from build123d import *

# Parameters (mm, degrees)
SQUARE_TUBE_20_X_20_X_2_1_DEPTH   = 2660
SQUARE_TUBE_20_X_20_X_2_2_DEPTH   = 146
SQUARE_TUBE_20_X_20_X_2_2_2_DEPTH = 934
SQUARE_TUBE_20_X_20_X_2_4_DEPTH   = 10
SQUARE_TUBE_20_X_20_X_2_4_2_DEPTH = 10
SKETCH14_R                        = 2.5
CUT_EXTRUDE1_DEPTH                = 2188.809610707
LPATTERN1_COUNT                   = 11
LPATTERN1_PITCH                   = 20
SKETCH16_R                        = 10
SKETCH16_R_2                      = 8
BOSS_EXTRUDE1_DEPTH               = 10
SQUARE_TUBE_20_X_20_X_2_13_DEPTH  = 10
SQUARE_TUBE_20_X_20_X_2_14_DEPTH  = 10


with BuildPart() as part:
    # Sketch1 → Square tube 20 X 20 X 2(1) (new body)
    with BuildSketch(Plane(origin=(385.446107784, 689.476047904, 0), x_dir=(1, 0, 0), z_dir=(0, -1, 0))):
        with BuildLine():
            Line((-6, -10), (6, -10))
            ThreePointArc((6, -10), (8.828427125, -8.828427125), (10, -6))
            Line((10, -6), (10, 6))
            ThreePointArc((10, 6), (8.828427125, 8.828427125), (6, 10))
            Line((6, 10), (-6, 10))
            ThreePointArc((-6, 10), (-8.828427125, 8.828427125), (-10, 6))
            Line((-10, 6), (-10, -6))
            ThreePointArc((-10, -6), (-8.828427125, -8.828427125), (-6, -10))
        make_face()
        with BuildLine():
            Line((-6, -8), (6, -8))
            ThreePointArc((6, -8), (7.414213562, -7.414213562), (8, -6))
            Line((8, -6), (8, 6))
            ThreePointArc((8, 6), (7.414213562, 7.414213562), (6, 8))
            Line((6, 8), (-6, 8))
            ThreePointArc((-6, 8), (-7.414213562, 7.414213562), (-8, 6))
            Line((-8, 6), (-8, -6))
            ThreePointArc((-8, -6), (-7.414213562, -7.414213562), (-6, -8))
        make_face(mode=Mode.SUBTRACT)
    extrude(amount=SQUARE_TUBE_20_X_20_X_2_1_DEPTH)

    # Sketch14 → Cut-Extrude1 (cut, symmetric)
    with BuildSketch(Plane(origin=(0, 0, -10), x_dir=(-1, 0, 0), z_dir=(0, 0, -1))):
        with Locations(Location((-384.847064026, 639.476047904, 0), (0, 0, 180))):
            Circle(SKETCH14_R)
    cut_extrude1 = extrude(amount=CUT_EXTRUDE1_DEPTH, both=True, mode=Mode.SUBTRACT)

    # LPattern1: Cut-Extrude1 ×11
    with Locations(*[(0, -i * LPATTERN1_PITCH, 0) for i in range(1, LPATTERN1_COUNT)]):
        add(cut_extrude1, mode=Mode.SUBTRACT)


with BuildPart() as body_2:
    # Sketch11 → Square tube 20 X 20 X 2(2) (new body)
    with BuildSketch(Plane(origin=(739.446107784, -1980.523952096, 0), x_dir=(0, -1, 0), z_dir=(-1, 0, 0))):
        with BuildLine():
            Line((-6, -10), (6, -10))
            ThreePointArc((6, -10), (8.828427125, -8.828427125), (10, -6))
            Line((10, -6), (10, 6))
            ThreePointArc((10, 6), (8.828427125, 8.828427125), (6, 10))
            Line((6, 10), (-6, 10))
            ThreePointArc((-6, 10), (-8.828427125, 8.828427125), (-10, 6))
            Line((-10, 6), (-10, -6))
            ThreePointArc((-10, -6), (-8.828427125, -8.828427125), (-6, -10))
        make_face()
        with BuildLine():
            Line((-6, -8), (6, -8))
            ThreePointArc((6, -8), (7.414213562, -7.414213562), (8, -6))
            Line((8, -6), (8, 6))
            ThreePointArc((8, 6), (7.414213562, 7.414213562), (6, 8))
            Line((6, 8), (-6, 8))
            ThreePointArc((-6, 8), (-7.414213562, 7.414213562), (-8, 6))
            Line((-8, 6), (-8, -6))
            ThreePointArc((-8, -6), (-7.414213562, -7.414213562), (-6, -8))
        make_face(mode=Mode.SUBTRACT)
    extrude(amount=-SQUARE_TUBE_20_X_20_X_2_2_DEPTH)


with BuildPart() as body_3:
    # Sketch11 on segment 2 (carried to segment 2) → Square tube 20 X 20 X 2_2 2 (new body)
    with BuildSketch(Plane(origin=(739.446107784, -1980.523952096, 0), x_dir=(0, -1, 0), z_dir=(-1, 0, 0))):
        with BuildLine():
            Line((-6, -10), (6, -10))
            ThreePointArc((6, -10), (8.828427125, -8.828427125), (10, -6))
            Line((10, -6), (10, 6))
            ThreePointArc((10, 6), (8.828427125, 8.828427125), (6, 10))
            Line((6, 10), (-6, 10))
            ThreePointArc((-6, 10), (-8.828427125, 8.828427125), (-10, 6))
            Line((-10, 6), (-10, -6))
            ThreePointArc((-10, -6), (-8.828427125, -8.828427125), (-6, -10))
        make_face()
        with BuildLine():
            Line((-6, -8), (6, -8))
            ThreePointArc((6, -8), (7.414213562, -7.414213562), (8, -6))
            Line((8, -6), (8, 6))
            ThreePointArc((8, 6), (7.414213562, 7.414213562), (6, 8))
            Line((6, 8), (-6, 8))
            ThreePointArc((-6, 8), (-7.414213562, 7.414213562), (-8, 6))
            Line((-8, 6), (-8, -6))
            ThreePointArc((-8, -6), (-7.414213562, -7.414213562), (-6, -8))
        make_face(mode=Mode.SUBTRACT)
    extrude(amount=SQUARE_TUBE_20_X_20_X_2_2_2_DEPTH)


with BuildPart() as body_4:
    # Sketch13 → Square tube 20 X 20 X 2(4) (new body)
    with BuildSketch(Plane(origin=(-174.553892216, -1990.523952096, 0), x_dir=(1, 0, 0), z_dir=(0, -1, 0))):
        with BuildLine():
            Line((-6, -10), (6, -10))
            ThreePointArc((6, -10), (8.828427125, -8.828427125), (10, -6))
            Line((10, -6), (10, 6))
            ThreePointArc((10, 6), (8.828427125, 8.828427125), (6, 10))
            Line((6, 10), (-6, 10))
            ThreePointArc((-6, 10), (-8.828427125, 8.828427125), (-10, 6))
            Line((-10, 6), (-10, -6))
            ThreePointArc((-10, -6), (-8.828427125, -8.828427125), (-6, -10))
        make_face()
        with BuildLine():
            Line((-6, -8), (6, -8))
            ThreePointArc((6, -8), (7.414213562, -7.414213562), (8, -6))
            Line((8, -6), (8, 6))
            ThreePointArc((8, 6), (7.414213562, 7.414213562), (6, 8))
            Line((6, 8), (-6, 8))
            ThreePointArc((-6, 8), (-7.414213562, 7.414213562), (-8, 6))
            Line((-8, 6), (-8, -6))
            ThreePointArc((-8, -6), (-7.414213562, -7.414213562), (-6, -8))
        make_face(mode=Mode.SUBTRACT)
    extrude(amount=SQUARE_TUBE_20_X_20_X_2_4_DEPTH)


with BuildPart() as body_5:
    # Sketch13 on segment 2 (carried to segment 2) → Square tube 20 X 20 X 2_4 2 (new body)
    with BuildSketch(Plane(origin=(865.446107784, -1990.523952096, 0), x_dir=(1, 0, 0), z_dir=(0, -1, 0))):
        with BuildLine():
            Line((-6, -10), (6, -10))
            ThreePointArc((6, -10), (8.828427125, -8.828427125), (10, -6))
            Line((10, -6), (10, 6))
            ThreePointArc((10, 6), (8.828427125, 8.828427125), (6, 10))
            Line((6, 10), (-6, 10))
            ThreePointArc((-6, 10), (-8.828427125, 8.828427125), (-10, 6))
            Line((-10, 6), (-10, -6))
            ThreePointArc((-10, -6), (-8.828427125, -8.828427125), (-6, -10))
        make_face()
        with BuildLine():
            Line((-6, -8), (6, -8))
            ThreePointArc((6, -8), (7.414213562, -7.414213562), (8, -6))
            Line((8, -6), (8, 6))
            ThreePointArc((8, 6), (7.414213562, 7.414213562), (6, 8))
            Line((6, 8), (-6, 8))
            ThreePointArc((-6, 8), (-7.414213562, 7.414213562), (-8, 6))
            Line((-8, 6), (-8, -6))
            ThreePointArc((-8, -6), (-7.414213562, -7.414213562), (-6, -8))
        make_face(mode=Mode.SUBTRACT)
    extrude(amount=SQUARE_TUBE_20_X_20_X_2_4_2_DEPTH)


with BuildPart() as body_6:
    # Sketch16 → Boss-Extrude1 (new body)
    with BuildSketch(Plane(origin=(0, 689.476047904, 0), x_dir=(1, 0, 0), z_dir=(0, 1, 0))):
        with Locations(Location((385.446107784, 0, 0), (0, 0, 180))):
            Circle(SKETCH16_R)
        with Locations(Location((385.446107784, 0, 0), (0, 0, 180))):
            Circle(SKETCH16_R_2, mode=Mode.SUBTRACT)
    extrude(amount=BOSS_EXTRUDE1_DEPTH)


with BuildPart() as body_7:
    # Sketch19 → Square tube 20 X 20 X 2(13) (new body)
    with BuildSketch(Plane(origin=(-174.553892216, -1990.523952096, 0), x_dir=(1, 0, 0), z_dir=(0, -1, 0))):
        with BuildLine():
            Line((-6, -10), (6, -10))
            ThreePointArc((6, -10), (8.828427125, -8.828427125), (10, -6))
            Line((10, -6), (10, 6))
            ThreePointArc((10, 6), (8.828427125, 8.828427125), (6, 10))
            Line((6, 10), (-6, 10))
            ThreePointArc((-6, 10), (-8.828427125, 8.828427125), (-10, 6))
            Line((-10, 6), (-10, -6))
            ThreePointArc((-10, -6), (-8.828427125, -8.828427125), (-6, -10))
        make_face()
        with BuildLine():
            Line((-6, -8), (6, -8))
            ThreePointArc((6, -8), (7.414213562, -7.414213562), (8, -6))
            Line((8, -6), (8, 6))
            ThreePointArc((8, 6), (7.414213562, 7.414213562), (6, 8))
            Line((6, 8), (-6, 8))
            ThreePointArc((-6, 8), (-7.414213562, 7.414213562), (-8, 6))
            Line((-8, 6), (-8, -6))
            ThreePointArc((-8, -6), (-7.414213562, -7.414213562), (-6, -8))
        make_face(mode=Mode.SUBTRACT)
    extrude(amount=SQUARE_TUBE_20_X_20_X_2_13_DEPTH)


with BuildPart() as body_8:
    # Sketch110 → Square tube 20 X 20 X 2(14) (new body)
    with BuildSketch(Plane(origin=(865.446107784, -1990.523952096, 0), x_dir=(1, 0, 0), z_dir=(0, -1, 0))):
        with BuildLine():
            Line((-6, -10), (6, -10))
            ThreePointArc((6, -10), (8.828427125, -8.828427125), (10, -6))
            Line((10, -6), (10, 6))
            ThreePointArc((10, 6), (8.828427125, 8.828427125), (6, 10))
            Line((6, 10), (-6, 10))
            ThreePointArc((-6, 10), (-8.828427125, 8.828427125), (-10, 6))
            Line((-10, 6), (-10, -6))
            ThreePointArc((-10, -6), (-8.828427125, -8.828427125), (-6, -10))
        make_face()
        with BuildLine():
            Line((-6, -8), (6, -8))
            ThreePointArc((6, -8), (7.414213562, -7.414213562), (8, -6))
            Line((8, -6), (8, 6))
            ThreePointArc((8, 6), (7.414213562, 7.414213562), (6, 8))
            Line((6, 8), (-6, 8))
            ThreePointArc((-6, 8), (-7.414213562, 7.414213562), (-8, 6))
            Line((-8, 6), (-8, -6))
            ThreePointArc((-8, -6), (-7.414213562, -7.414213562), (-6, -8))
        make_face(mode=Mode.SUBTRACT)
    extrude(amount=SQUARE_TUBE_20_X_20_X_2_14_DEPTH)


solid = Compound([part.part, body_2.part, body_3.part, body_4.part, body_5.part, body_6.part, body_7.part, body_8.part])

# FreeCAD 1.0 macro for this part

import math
import FreeCAD as App
import Part
import Sketcher

V = App.Vector
Q = App.Units.Quantity

doc = App.newDocument("Part")
body = doc.addObject("PartDesign::Body", "Body")

# Sketch on XZ plane
sketch1 = body.newObject("Sketcher::SketchObject", "Sketch")
sketch1.AttachmentSupport = (doc.getObject("XZ_Plane"), [""])
sketch1.MapMode = "FlatFace"
sketch1.AttachmentOffset = App.Placement(V(0, 0, -689.476048), App.Rotation())
sketch1.addGeometry(Part.LineSegment(V(379.446108, -10, 0), V(391.446108, -10, 0)), False)
sketch1.addGeometry(Part.ArcOfCircle(Part.Circle(V(391.446108, -6, 0), V(0, 0, 1), 4), math.radians(-90), math.radians(0)), False)
sketch1.addGeometry(Part.LineSegment(V(395.446108, -6, 0), V(395.446108, 6, 0)), False)
sketch1.addGeometry(Part.ArcOfCircle(Part.Circle(V(391.446108, 6, 0), V(0, 0, 1), 4), math.radians(0), math.radians(90)), False)
sketch1.addGeometry(Part.LineSegment(V(391.446108, 10, 0), V(379.446108, 10, 0)), False)
sketch1.addGeometry(Part.ArcOfCircle(Part.Circle(V(379.446108, 6, 0), V(0, 0, 1), 4), math.radians(90), math.radians(180)), False)
sketch1.addGeometry(Part.LineSegment(V(375.446108, 6, 0), V(375.446108, -6, 0)), False)
sketch1.addGeometry(Part.ArcOfCircle(Part.Circle(V(379.446108, -6, 0), V(0, 0, 1), 4), math.radians(180), math.radians(270)), False)
sketch1.addGeometry(Part.LineSegment(V(391.446108, -8, 0), V(379.446108, -8, 0)), False)
sketch1.addGeometry(Part.ArcOfCircle(Part.Circle(V(379.446108, -6, 0), V(0, 0, 1), 2), math.radians(-180), math.radians(-90)), False)
sketch1.addGeometry(Part.LineSegment(V(377.446108, -6, 0), V(377.446108, 6, 0)), False)
sketch1.addGeometry(Part.ArcOfCircle(Part.Circle(V(379.446108, 6, 0), V(0, 0, 1), 2), math.radians(90), math.radians(180)), False)
sketch1.addGeometry(Part.LineSegment(V(379.446108, 8, 0), V(391.446108, 8, 0)), False)
sketch1.addGeometry(Part.ArcOfCircle(Part.Circle(V(391.446108, 6, 0), V(0, 0, 1), 2), math.radians(0), math.radians(90)), False)
sketch1.addGeometry(Part.LineSegment(V(393.446108, 6, 0), V(393.446108, -6, 0)), False)
sketch1.addGeometry(Part.ArcOfCircle(Part.Circle(V(391.446108, -6, 0), V(0, 0, 1), 2), math.radians(-90), math.radians(0)), False)
sketch1.addConstraint(Sketcher.Constraint("Tangent", 0, 2, 1, 1))
sketch1.addConstraint(Sketcher.Constraint("Tangent", 1, 2, 2, 1))
sketch1.addConstraint(Sketcher.Constraint("Tangent", 2, 2, 3, 1))
sketch1.addConstraint(Sketcher.Constraint("Tangent", 3, 2, 4, 1))
sketch1.addConstraint(Sketcher.Constraint("Tangent", 4, 2, 5, 1))
sketch1.addConstraint(Sketcher.Constraint("Tangent", 5, 2, 6, 1))
sketch1.addConstraint(Sketcher.Constraint("Tangent", 6, 2, 7, 1))
sketch1.addConstraint(Sketcher.Constraint("Tangent", 7, 2, 0, 1))
sketch1.addConstraint(Sketcher.Constraint("Tangent", 8, 2, 9, 2))
sketch1.addConstraint(Sketcher.Constraint("Tangent", 9, 1, 10, 1))
sketch1.addConstraint(Sketcher.Constraint("Tangent", 10, 2, 11, 2))
sketch1.addConstraint(Sketcher.Constraint("Tangent", 11, 1, 12, 1))
sketch1.addConstraint(Sketcher.Constraint("Tangent", 12, 2, 13, 2))
sketch1.addConstraint(Sketcher.Constraint("Tangent", 13, 1, 14, 1))
sketch1.addConstraint(Sketcher.Constraint("Tangent", 14, 2, 15, 2))
sketch1.addConstraint(Sketcher.Constraint("Tangent", 15, 1, 8, 1))
sketch1.addConstraint(Sketcher.Constraint("Horizontal", 0))
sketch1.addConstraint(Sketcher.Constraint("Vertical", 2))
sketch1.addConstraint(Sketcher.Constraint("Horizontal", 4))
sketch1.addConstraint(Sketcher.Constraint("Vertical", 6))
sketch1.addConstraint(Sketcher.Constraint("Horizontal", 8))
sketch1.addConstraint(Sketcher.Constraint("Vertical", 10))
sketch1.addConstraint(Sketcher.Constraint("Horizontal", 12))
sketch1.addConstraint(Sketcher.Constraint("Vertical", 14))
sketch1.addConstraint(Sketcher.Constraint("Coincident", 9, 3, 7, 3))
sketch1.addConstraint(Sketcher.Constraint("Coincident", 11, 3, 5, 3))
sketch1.addConstraint(Sketcher.Constraint("Coincident", 13, 3, 3, 3))
sketch1.addConstraint(Sketcher.Constraint("Equal", 1, 3))
sketch1.addConstraint(Sketcher.Constraint("Equal", 3, 5))
sketch1.addConstraint(Sketcher.Constraint("Equal", 5, 7))
sketch1.addConstraint(Sketcher.Constraint("Equal", 13, 15))
sketch1.addConstraint(Sketcher.Constraint("Equal", 12, 2))
sketch1.addConstraint(Sketcher.Constraint("Radius", 1, Q("4 mm")))
sketch1.addConstraint(Sketcher.Constraint("Radius", 9, Q("2 mm")))
sketch1.addConstraint(Sketcher.Constraint("DistanceX", 0, 1, 0, 2, Q("12 mm")))
sketch1.addConstraint(Sketcher.Constraint("DistanceY", 1, 3, -1, 1, Q("6 mm")))
sketch1.addConstraint(Sketcher.Constraint("DistanceX", -1, 1, 1, 3, Q("391.446108 mm")))
pad1 = body.newObject("PartDesign::Pad", "Pad")
pad1.Profile = sketch1
pad1.Length = 2660

# Sketch on XY plane
sketch2 = body.newObject("Sketcher::SketchObject", "Sketch001")
sketch2.AttachmentSupport = (doc.getObject("XY_Plane"), [""])
sketch2.MapMode = "FlatFace"
sketch2.AttachmentOffset = App.Placement(V(0, 0, -10), App.Rotation())
sketch2.addGeometry(Part.Circle(V(384.847064, 639.476048, 0), V(0, 0, 1), 2.5), False)
sketch2.addConstraint(Sketcher.Constraint("Diameter", 0, Q("5 mm")))
sketch2.addConstraint(Sketcher.Constraint("DistanceX", -1, 1, 0, 3, Q("384.847064 mm")))
sketch2.addConstraint(Sketcher.Constraint("DistanceY", -1, 1, 0, 3, Q("639.476048 mm")))
pocket1 = body.newObject("PartDesign::Pocket", "Pocket")
pocket1.Profile = sketch2
pocket1.Length = 4377.619221
pocket1.Midplane = True
doc.recompute()

linearpattern = body.newObject("PartDesign::LinearPattern", "LinearPattern")
linearpattern.Originals = [pocket1]
linearpattern.Direction = (doc.getObject("Y_Axis"), [""])
linearpattern.Mode = "offset"
linearpattern.Offset = 20
linearpattern.Occurrences = 11
linearpattern.Reversed = True
body.Tip = linearpattern
body2 = doc.addObject("PartDesign::Body", "Body001")

# Sketch on YZ plane
sketch3 = body2.newObject("Sketcher::SketchObject", "Sketch002")
sketch3.AttachmentSupport = (doc.getObject("YZ_Plane001"), [""])
sketch3.MapMode = "FlatFace"
sketch3.AttachmentOffset = App.Placement(V(0, 0, 739.446108), App.Rotation())
sketch3.addGeometry(Part.LineSegment(V(-1974.523952, -10, 0), V(-1986.523952, -10, 0)), False)
sketch3.addGeometry(Part.ArcOfCircle(Part.Circle(V(-1986.523952, -6, 0), V(0, 0, 1), 4), math.radians(180), math.radians(270)), False)
sketch3.addGeometry(Part.LineSegment(V(-1990.523952, -6, 0), V(-1990.523952, 6, 0)), False)
sketch3.addGeometry(Part.ArcOfCircle(Part.Circle(V(-1986.523952, 6, 0), V(0, 0, 1), 4), math.radians(90), math.radians(180)), False)
sketch3.addGeometry(Part.LineSegment(V(-1986.523952, 10, 0), V(-1974.523952, 10, 0)), False)
sketch3.addGeometry(Part.ArcOfCircle(Part.Circle(V(-1974.523952, 6, 0), V(0, 0, 1), 4), math.radians(0), math.radians(90)), False)
sketch3.addGeometry(Part.LineSegment(V(-1970.523952, 6, 0), V(-1970.523952, -6, 0)), False)
sketch3.addGeometry(Part.ArcOfCircle(Part.Circle(V(-1974.523952, -6, 0), V(0, 0, 1), 4), math.radians(-90), math.radians(0)), False)
sketch3.addGeometry(Part.LineSegment(V(-1986.523952, -8, 0), V(-1974.523952, -8, 0)), False)
sketch3.addGeometry(Part.ArcOfCircle(Part.Circle(V(-1974.523952, -6, 0), V(0, 0, 1), 2), math.radians(-90), math.radians(0)), False)
sketch3.addGeometry(Part.LineSegment(V(-1972.523952, -6, 0), V(-1972.523952, 6, 0)), False)
sketch3.addGeometry(Part.ArcOfCircle(Part.Circle(V(-1974.523952, 6, 0), V(0, 0, 1), 2), math.radians(0), math.radians(90)), False)
sketch3.addGeometry(Part.LineSegment(V(-1974.523952, 8, 0), V(-1986.523952, 8, 0)), False)
sketch3.addGeometry(Part.ArcOfCircle(Part.Circle(V(-1986.523952, 6, 0), V(0, 0, 1), 2), math.radians(90), math.radians(180)), False)
sketch3.addGeometry(Part.LineSegment(V(-1988.523952, 6, 0), V(-1988.523952, -6, 0)), False)
sketch3.addGeometry(Part.ArcOfCircle(Part.Circle(V(-1986.523952, -6, 0), V(0, 0, 1), 2), math.radians(-180), math.radians(-90)), False)
sketch3.addConstraint(Sketcher.Constraint("Tangent", 0, 2, 1, 2))
sketch3.addConstraint(Sketcher.Constraint("Tangent", 1, 1, 2, 1))
sketch3.addConstraint(Sketcher.Constraint("Tangent", 2, 2, 3, 2))
sketch3.addConstraint(Sketcher.Constraint("Tangent", 3, 1, 4, 1))
sketch3.addConstraint(Sketcher.Constraint("Tangent", 4, 2, 5, 2))
sketch3.addConstraint(Sketcher.Constraint("Tangent", 5, 1, 6, 1))
sketch3.addConstraint(Sketcher.Constraint("Tangent", 6, 2, 7, 2))
sketch3.addConstraint(Sketcher.Constraint("Tangent", 7, 1, 0, 1))
sketch3.addConstraint(Sketcher.Constraint("Tangent", 8, 2, 9, 1))
sketch3.addConstraint(Sketcher.Constraint("Tangent", 9, 2, 10, 1))
sketch3.addConstraint(Sketcher.Constraint("Tangent", 10, 2, 11, 1))
sketch3.addConstraint(Sketcher.Constraint("Tangent", 11, 2, 12, 1))
sketch3.addConstraint(Sketcher.Constraint("Tangent", 12, 2, 13, 1))
sketch3.addConstraint(Sketcher.Constraint("Tangent", 13, 2, 14, 1))
sketch3.addConstraint(Sketcher.Constraint("Tangent", 14, 2, 15, 1))
sketch3.addConstraint(Sketcher.Constraint("Tangent", 15, 2, 8, 1))
sketch3.addConstraint(Sketcher.Constraint("Horizontal", 0))
sketch3.addConstraint(Sketcher.Constraint("Vertical", 2))
sketch3.addConstraint(Sketcher.Constraint("Horizontal", 4))
sketch3.addConstraint(Sketcher.Constraint("Vertical", 6))
sketch3.addConstraint(Sketcher.Constraint("Horizontal", 8))
sketch3.addConstraint(Sketcher.Constraint("Vertical", 10))
sketch3.addConstraint(Sketcher.Constraint("Horizontal", 12))
sketch3.addConstraint(Sketcher.Constraint("Vertical", 14))
sketch3.addConstraint(Sketcher.Constraint("Coincident", 9, 3, 7, 3))
sketch3.addConstraint(Sketcher.Constraint("Coincident", 11, 3, 5, 3))
sketch3.addConstraint(Sketcher.Constraint("Coincident", 13, 3, 3, 3))
sketch3.addConstraint(Sketcher.Constraint("Equal", 1, 3))
sketch3.addConstraint(Sketcher.Constraint("Equal", 3, 5))
sketch3.addConstraint(Sketcher.Constraint("Equal", 5, 7))
sketch3.addConstraint(Sketcher.Constraint("Equal", 13, 15))
sketch3.addConstraint(Sketcher.Constraint("Equal", 12, 2))
sketch3.addConstraint(Sketcher.Constraint("Radius", 1, Q("4 mm")))
sketch3.addConstraint(Sketcher.Constraint("Radius", 9, Q("2 mm")))
sketch3.addConstraint(Sketcher.Constraint("DistanceX", 0, 2, 0, 1, Q("12 mm")))
sketch3.addConstraint(Sketcher.Constraint("DistanceY", 1, 3, -1, 1, Q("6 mm")))
sketch3.addConstraint(Sketcher.Constraint("DistanceX", 1, 3, -1, 1, Q("1986.523952 mm")))
pad2 = body2.newObject("PartDesign::Pad", "Pad001")
pad2.Profile = sketch3
pad2.Length = 146
body3 = doc.addObject("PartDesign::Body", "Body002")

# Sketch on YZ plane
sketch4 = body3.newObject("Sketcher::SketchObject", "Sketch003")
sketch4.AttachmentSupport = (doc.getObject("YZ_Plane002"), [""])
sketch4.MapMode = "FlatFace"
sketch4.AttachmentOffset = App.Placement(V(0, 0, 739.446108), App.Rotation())
sketch4.addGeometry(Part.LineSegment(V(-1974.523952, -10, 0), V(-1986.523952, -10, 0)), False)
sketch4.addGeometry(Part.ArcOfCircle(Part.Circle(V(-1986.523952, -6, 0), V(0, 0, 1), 4), math.radians(180), math.radians(270)), False)
sketch4.addGeometry(Part.LineSegment(V(-1990.523952, -6, 0), V(-1990.523952, 6, 0)), False)
sketch4.addGeometry(Part.ArcOfCircle(Part.Circle(V(-1986.523952, 6, 0), V(0, 0, 1), 4), math.radians(90), math.radians(180)), False)
sketch4.addGeometry(Part.LineSegment(V(-1986.523952, 10, 0), V(-1974.523952, 10, 0)), False)
sketch4.addGeometry(Part.ArcOfCircle(Part.Circle(V(-1974.523952, 6, 0), V(0, 0, 1), 4), math.radians(0), math.radians(90)), False)
sketch4.addGeometry(Part.LineSegment(V(-1970.523952, 6, 0), V(-1970.523952, -6, 0)), False)
sketch4.addGeometry(Part.ArcOfCircle(Part.Circle(V(-1974.523952, -6, 0), V(0, 0, 1), 4), math.radians(-90), math.radians(0)), False)
sketch4.addGeometry(Part.LineSegment(V(-1986.523952, -8, 0), V(-1974.523952, -8, 0)), False)
sketch4.addGeometry(Part.ArcOfCircle(Part.Circle(V(-1974.523952, -6, 0), V(0, 0, 1), 2), math.radians(-90), math.radians(0)), False)
sketch4.addGeometry(Part.LineSegment(V(-1972.523952, -6, 0), V(-1972.523952, 6, 0)), False)
sketch4.addGeometry(Part.ArcOfCircle(Part.Circle(V(-1974.523952, 6, 0), V(0, 0, 1), 2), math.radians(0), math.radians(90)), False)
sketch4.addGeometry(Part.LineSegment(V(-1974.523952, 8, 0), V(-1986.523952, 8, 0)), False)
sketch4.addGeometry(Part.ArcOfCircle(Part.Circle(V(-1986.523952, 6, 0), V(0, 0, 1), 2), math.radians(90), math.radians(180)), False)
sketch4.addGeometry(Part.LineSegment(V(-1988.523952, 6, 0), V(-1988.523952, -6, 0)), False)
sketch4.addGeometry(Part.ArcOfCircle(Part.Circle(V(-1986.523952, -6, 0), V(0, 0, 1), 2), math.radians(-180), math.radians(-90)), False)
sketch4.addConstraint(Sketcher.Constraint("Tangent", 0, 2, 1, 2))
sketch4.addConstraint(Sketcher.Constraint("Tangent", 1, 1, 2, 1))
sketch4.addConstraint(Sketcher.Constraint("Tangent", 2, 2, 3, 2))
sketch4.addConstraint(Sketcher.Constraint("Tangent", 3, 1, 4, 1))
sketch4.addConstraint(Sketcher.Constraint("Tangent", 4, 2, 5, 2))
sketch4.addConstraint(Sketcher.Constraint("Tangent", 5, 1, 6, 1))
sketch4.addConstraint(Sketcher.Constraint("Tangent", 6, 2, 7, 2))
sketch4.addConstraint(Sketcher.Constraint("Tangent", 7, 1, 0, 1))
sketch4.addConstraint(Sketcher.Constraint("Tangent", 8, 2, 9, 1))
sketch4.addConstraint(Sketcher.Constraint("Tangent", 9, 2, 10, 1))
sketch4.addConstraint(Sketcher.Constraint("Tangent", 10, 2, 11, 1))
sketch4.addConstraint(Sketcher.Constraint("Tangent", 11, 2, 12, 1))
sketch4.addConstraint(Sketcher.Constraint("Tangent", 12, 2, 13, 1))
sketch4.addConstraint(Sketcher.Constraint("Tangent", 13, 2, 14, 1))
sketch4.addConstraint(Sketcher.Constraint("Tangent", 14, 2, 15, 1))
sketch4.addConstraint(Sketcher.Constraint("Tangent", 15, 2, 8, 1))
sketch4.addConstraint(Sketcher.Constraint("Horizontal", 0))
sketch4.addConstraint(Sketcher.Constraint("Vertical", 2))
sketch4.addConstraint(Sketcher.Constraint("Horizontal", 4))
sketch4.addConstraint(Sketcher.Constraint("Vertical", 6))
sketch4.addConstraint(Sketcher.Constraint("Horizontal", 8))
sketch4.addConstraint(Sketcher.Constraint("Vertical", 10))
sketch4.addConstraint(Sketcher.Constraint("Horizontal", 12))
sketch4.addConstraint(Sketcher.Constraint("Vertical", 14))
sketch4.addConstraint(Sketcher.Constraint("Coincident", 9, 3, 7, 3))
sketch4.addConstraint(Sketcher.Constraint("Coincident", 11, 3, 5, 3))
sketch4.addConstraint(Sketcher.Constraint("Coincident", 13, 3, 3, 3))
sketch4.addConstraint(Sketcher.Constraint("Equal", 1, 3))
sketch4.addConstraint(Sketcher.Constraint("Equal", 3, 5))
sketch4.addConstraint(Sketcher.Constraint("Equal", 5, 7))
sketch4.addConstraint(Sketcher.Constraint("Equal", 13, 15))
sketch4.addConstraint(Sketcher.Constraint("Equal", 12, 2))
sketch4.addConstraint(Sketcher.Constraint("Radius", 1, Q("4 mm")))
sketch4.addConstraint(Sketcher.Constraint("Radius", 9, Q("2 mm")))
sketch4.addConstraint(Sketcher.Constraint("DistanceX", 0, 2, 0, 1, Q("12 mm")))
sketch4.addConstraint(Sketcher.Constraint("DistanceY", 1, 3, -1, 1, Q("6 mm")))
sketch4.addConstraint(Sketcher.Constraint("DistanceX", 1, 3, -1, 1, Q("1986.523952 mm")))
pad3 = body3.newObject("PartDesign::Pad", "Pad002")
pad3.Profile = sketch4
pad3.Length = 934
pad3.Reversed = True
body4 = doc.addObject("PartDesign::Body", "Body003")

# Sketch on XZ plane
sketch5 = body4.newObject("Sketcher::SketchObject", "Sketch004")
sketch5.AttachmentSupport = (doc.getObject("XZ_Plane003"), [""])
sketch5.MapMode = "FlatFace"
sketch5.AttachmentOffset = App.Placement(V(0, 0, 1990.523952), App.Rotation())
sketch5.addGeometry(Part.LineSegment(V(-180.553892, -10, 0), V(-168.553892, -10, 0)), False)
sketch5.addGeometry(Part.ArcOfCircle(Part.Circle(V(-168.553892, -6, 0), V(0, 0, 1), 4), math.radians(-90), math.radians(0)), False)
sketch5.addGeometry(Part.LineSegment(V(-164.553892, -6, 0), V(-164.553892, 6, 0)), False)
sketch5.addGeometry(Part.ArcOfCircle(Part.Circle(V(-168.553892, 6, 0), V(0, 0, 1), 4), math.radians(0), math.radians(90)), False)
sketch5.addGeometry(Part.LineSegment(V(-168.553892, 10, 0), V(-180.553892, 10, 0)), False)
sketch5.addGeometry(Part.ArcOfCircle(Part.Circle(V(-180.553892, 6, 0), V(0, 0, 1), 4), math.radians(90), math.radians(180)), False)
sketch5.addGeometry(Part.LineSegment(V(-184.553892, 6, 0), V(-184.553892, -6, 0)), False)
sketch5.addGeometry(Part.ArcOfCircle(Part.Circle(V(-180.553892, -6, 0), V(0, 0, 1), 4), math.radians(180), math.radians(270)), False)
sketch5.addGeometry(Part.LineSegment(V(-168.553892, -8, 0), V(-180.553892, -8, 0)), False)
sketch5.addGeometry(Part.ArcOfCircle(Part.Circle(V(-180.553892, -6, 0), V(0, 0, 1), 2), math.radians(-180), math.radians(-90)), False)
sketch5.addGeometry(Part.LineSegment(V(-182.553892, -6, 0), V(-182.553892, 6, 0)), False)
sketch5.addGeometry(Part.ArcOfCircle(Part.Circle(V(-180.553892, 6, 0), V(0, 0, 1), 2), math.radians(90), math.radians(180)), False)
sketch5.addGeometry(Part.LineSegment(V(-180.553892, 8, 0), V(-168.553892, 8, 0)), False)
sketch5.addGeometry(Part.ArcOfCircle(Part.Circle(V(-168.553892, 6, 0), V(0, 0, 1), 2), math.radians(0), math.radians(90)), False)
sketch5.addGeometry(Part.LineSegment(V(-166.553892, 6, 0), V(-166.553892, -6, 0)), False)
sketch5.addGeometry(Part.ArcOfCircle(Part.Circle(V(-168.553892, -6, 0), V(0, 0, 1), 2), math.radians(-90), math.radians(0)), False)
sketch5.addConstraint(Sketcher.Constraint("Tangent", 0, 2, 1, 1))
sketch5.addConstraint(Sketcher.Constraint("Tangent", 1, 2, 2, 1))
sketch5.addConstraint(Sketcher.Constraint("Tangent", 2, 2, 3, 1))
sketch5.addConstraint(Sketcher.Constraint("Tangent", 3, 2, 4, 1))
sketch5.addConstraint(Sketcher.Constraint("Tangent", 4, 2, 5, 1))
sketch5.addConstraint(Sketcher.Constraint("Tangent", 5, 2, 6, 1))
sketch5.addConstraint(Sketcher.Constraint("Tangent", 6, 2, 7, 1))
sketch5.addConstraint(Sketcher.Constraint("Tangent", 7, 2, 0, 1))
sketch5.addConstraint(Sketcher.Constraint("Tangent", 8, 2, 9, 2))
sketch5.addConstraint(Sketcher.Constraint("Tangent", 9, 1, 10, 1))
sketch5.addConstraint(Sketcher.Constraint("Tangent", 10, 2, 11, 2))
sketch5.addConstraint(Sketcher.Constraint("Tangent", 11, 1, 12, 1))
sketch5.addConstraint(Sketcher.Constraint("Tangent", 12, 2, 13, 2))
sketch5.addConstraint(Sketcher.Constraint("Tangent", 13, 1, 14, 1))
sketch5.addConstraint(Sketcher.Constraint("Tangent", 14, 2, 15, 2))
sketch5.addConstraint(Sketcher.Constraint("Tangent", 15, 1, 8, 1))
sketch5.addConstraint(Sketcher.Constraint("Horizontal", 0))
sketch5.addConstraint(Sketcher.Constraint("Vertical", 2))
sketch5.addConstraint(Sketcher.Constraint("Horizontal", 4))
sketch5.addConstraint(Sketcher.Constraint("Vertical", 6))
sketch5.addConstraint(Sketcher.Constraint("Horizontal", 8))
sketch5.addConstraint(Sketcher.Constraint("Vertical", 10))
sketch5.addConstraint(Sketcher.Constraint("Horizontal", 12))
sketch5.addConstraint(Sketcher.Constraint("Vertical", 14))
sketch5.addConstraint(Sketcher.Constraint("Coincident", 9, 3, 7, 3))
sketch5.addConstraint(Sketcher.Constraint("Coincident", 11, 3, 5, 3))
sketch5.addConstraint(Sketcher.Constraint("Coincident", 13, 3, 3, 3))
sketch5.addConstraint(Sketcher.Constraint("Equal", 1, 3))
sketch5.addConstraint(Sketcher.Constraint("Equal", 3, 5))
sketch5.addConstraint(Sketcher.Constraint("Equal", 5, 7))
sketch5.addConstraint(Sketcher.Constraint("Equal", 13, 15))
sketch5.addConstraint(Sketcher.Constraint("Equal", 12, 2))
sketch5.addConstraint(Sketcher.Constraint("Radius", 1, Q("4 mm")))
sketch5.addConstraint(Sketcher.Constraint("Radius", 9, Q("2 mm")))
sketch5.addConstraint(Sketcher.Constraint("DistanceX", 0, 1, 0, 2, Q("12 mm")))
sketch5.addConstraint(Sketcher.Constraint("DistanceY", 1, 3, -1, 1, Q("6 mm")))
sketch5.addConstraint(Sketcher.Constraint("DistanceX", 1, 3, -1, 1, Q("168.553892 mm")))
pad4 = body4.newObject("PartDesign::Pad", "Pad003")
pad4.Profile = sketch5
pad4.Length = 10
body5 = doc.addObject("PartDesign::Body", "Body004")

# Sketch on XZ plane
sketch6 = body5.newObject("Sketcher::SketchObject", "Sketch005")
sketch6.AttachmentSupport = (doc.getObject("XZ_Plane004"), [""])
sketch6.MapMode = "FlatFace"
sketch6.AttachmentOffset = App.Placement(V(0, 0, 1990.523952), App.Rotation())
sketch6.addGeometry(Part.LineSegment(V(859.446108, -10, 0), V(871.446108, -10, 0)), False)
sketch6.addGeometry(Part.ArcOfCircle(Part.Circle(V(871.446108, -6, 0), V(0, 0, 1), 4), math.radians(-90), math.radians(0)), False)
sketch6.addGeometry(Part.LineSegment(V(875.446108, -6, 0), V(875.446108, 6, 0)), False)
sketch6.addGeometry(Part.ArcOfCircle(Part.Circle(V(871.446108, 6, 0), V(0, 0, 1), 4), math.radians(0), math.radians(90)), False)
sketch6.addGeometry(Part.LineSegment(V(871.446108, 10, 0), V(859.446108, 10, 0)), False)
sketch6.addGeometry(Part.ArcOfCircle(Part.Circle(V(859.446108, 6, 0), V(0, 0, 1), 4), math.radians(90), math.radians(180)), False)
sketch6.addGeometry(Part.LineSegment(V(855.446108, 6, 0), V(855.446108, -6, 0)), False)
sketch6.addGeometry(Part.ArcOfCircle(Part.Circle(V(859.446108, -6, 0), V(0, 0, 1), 4), math.radians(180), math.radians(270)), False)
sketch6.addGeometry(Part.LineSegment(V(871.446108, -8, 0), V(859.446108, -8, 0)), False)
sketch6.addGeometry(Part.ArcOfCircle(Part.Circle(V(859.446108, -6, 0), V(0, 0, 1), 2), math.radians(-180), math.radians(-90)), False)
sketch6.addGeometry(Part.LineSegment(V(857.446108, -6, 0), V(857.446108, 6, 0)), False)
sketch6.addGeometry(Part.ArcOfCircle(Part.Circle(V(859.446108, 6, 0), V(0, 0, 1), 2), math.radians(90), math.radians(180)), False)
sketch6.addGeometry(Part.LineSegment(V(859.446108, 8, 0), V(871.446108, 8, 0)), False)
sketch6.addGeometry(Part.ArcOfCircle(Part.Circle(V(871.446108, 6, 0), V(0, 0, 1), 2), math.radians(0), math.radians(90)), False)
sketch6.addGeometry(Part.LineSegment(V(873.446108, 6, 0), V(873.446108, -6, 0)), False)
sketch6.addGeometry(Part.ArcOfCircle(Part.Circle(V(871.446108, -6, 0), V(0, 0, 1), 2), math.radians(-90), math.radians(0)), False)
sketch6.addConstraint(Sketcher.Constraint("Tangent", 0, 2, 1, 1))
sketch6.addConstraint(Sketcher.Constraint("Tangent", 1, 2, 2, 1))
sketch6.addConstraint(Sketcher.Constraint("Tangent", 2, 2, 3, 1))
sketch6.addConstraint(Sketcher.Constraint("Tangent", 3, 2, 4, 1))
sketch6.addConstraint(Sketcher.Constraint("Tangent", 4, 2, 5, 1))
sketch6.addConstraint(Sketcher.Constraint("Tangent", 5, 2, 6, 1))
sketch6.addConstraint(Sketcher.Constraint("Tangent", 6, 2, 7, 1))
sketch6.addConstraint(Sketcher.Constraint("Tangent", 7, 2, 0, 1))
sketch6.addConstraint(Sketcher.Constraint("Tangent", 8, 2, 9, 2))
sketch6.addConstraint(Sketcher.Constraint("Tangent", 9, 1, 10, 1))
sketch6.addConstraint(Sketcher.Constraint("Tangent", 10, 2, 11, 2))
sketch6.addConstraint(Sketcher.Constraint("Tangent", 11, 1, 12, 1))
sketch6.addConstraint(Sketcher.Constraint("Tangent", 12, 2, 13, 2))
sketch6.addConstraint(Sketcher.Constraint("Tangent", 13, 1, 14, 1))
sketch6.addConstraint(Sketcher.Constraint("Tangent", 14, 2, 15, 2))
sketch6.addConstraint(Sketcher.Constraint("Tangent", 15, 1, 8, 1))
sketch6.addConstraint(Sketcher.Constraint("Horizontal", 0))
sketch6.addConstraint(Sketcher.Constraint("Vertical", 2))
sketch6.addConstraint(Sketcher.Constraint("Horizontal", 4))
sketch6.addConstraint(Sketcher.Constraint("Vertical", 6))
sketch6.addConstraint(Sketcher.Constraint("Horizontal", 8))
sketch6.addConstraint(Sketcher.Constraint("Vertical", 10))
sketch6.addConstraint(Sketcher.Constraint("Horizontal", 12))
sketch6.addConstraint(Sketcher.Constraint("Vertical", 14))
sketch6.addConstraint(Sketcher.Constraint("Coincident", 9, 3, 7, 3))
sketch6.addConstraint(Sketcher.Constraint("Coincident", 11, 3, 5, 3))
sketch6.addConstraint(Sketcher.Constraint("Coincident", 13, 3, 3, 3))
sketch6.addConstraint(Sketcher.Constraint("Equal", 1, 3))
sketch6.addConstraint(Sketcher.Constraint("Equal", 3, 5))
sketch6.addConstraint(Sketcher.Constraint("Equal", 5, 7))
sketch6.addConstraint(Sketcher.Constraint("Equal", 13, 15))
sketch6.addConstraint(Sketcher.Constraint("Equal", 12, 2))
sketch6.addConstraint(Sketcher.Constraint("Radius", 1, Q("4 mm")))
sketch6.addConstraint(Sketcher.Constraint("Radius", 9, Q("2 mm")))
sketch6.addConstraint(Sketcher.Constraint("DistanceX", 0, 1, 0, 2, Q("12 mm")))
sketch6.addConstraint(Sketcher.Constraint("DistanceY", 1, 3, -1, 1, Q("6 mm")))
sketch6.addConstraint(Sketcher.Constraint("DistanceX", -1, 1, 1, 3, Q("871.446108 mm")))
pad5 = body5.newObject("PartDesign::Pad", "Pad004")
pad5.Profile = sketch6
pad5.Length = 10
body6 = doc.addObject("PartDesign::Body", "Body005")

# Sketch on XZ plane
sketch7 = body6.newObject("Sketcher::SketchObject", "Sketch006")
sketch7.AttachmentSupport = (doc.getObject("XZ_Plane005"), [""])
sketch7.MapMode = "FlatFace"
sketch7.AttachmentOffset = App.Placement(V(0, 0, -689.476048), App.Rotation())
sketch7.addGeometry(Part.Circle(V(385.446108, 0, 0), V(0, 0, 1), 10), False)
sketch7.addGeometry(Part.Circle(V(385.446108, 0, 0), V(0, 0, 1), 8), False)
sketch7.addConstraint(Sketcher.Constraint("Coincident", 1, 3, 0, 3))
sketch7.addConstraint(Sketcher.Constraint("PointOnObject", 0, 3, -1))
sketch7.addConstraint(Sketcher.Constraint("Diameter", 0, Q("20 mm")))
sketch7.addConstraint(Sketcher.Constraint("Diameter", 1, Q("16 mm")))
sketch7.addConstraint(Sketcher.Constraint("DistanceX", -1, 1, 0, 3, Q("385.446108 mm")))
pad6 = body6.newObject("PartDesign::Pad", "Pad005")
pad6.Profile = sketch7
pad6.Length = 10
pad6.Reversed = True
body7 = doc.addObject("PartDesign::Body", "Body006")

# Sketch on XZ plane
sketch8 = body7.newObject("Sketcher::SketchObject", "Sketch007")
sketch8.AttachmentSupport = (doc.getObject("XZ_Plane006"), [""])
sketch8.MapMode = "FlatFace"
sketch8.AttachmentOffset = App.Placement(V(0, 0, 1990.523952), App.Rotation())
sketch8.addGeometry(Part.LineSegment(V(-180.553892, -10, 0), V(-168.553892, -10, 0)), False)
sketch8.addGeometry(Part.ArcOfCircle(Part.Circle(V(-168.553892, -6, 0), V(0, 0, 1), 4), math.radians(-90), math.radians(0)), False)
sketch8.addGeometry(Part.LineSegment(V(-164.553892, -6, 0), V(-164.553892, 6, 0)), False)
sketch8.addGeometry(Part.ArcOfCircle(Part.Circle(V(-168.553892, 6, 0), V(0, 0, 1), 4), math.radians(0), math.radians(90)), False)
sketch8.addGeometry(Part.LineSegment(V(-168.553892, 10, 0), V(-180.553892, 10, 0)), False)
sketch8.addGeometry(Part.ArcOfCircle(Part.Circle(V(-180.553892, 6, 0), V(0, 0, 1), 4), math.radians(90), math.radians(180)), False)
sketch8.addGeometry(Part.LineSegment(V(-184.553892, 6, 0), V(-184.553892, -6, 0)), False)
sketch8.addGeometry(Part.ArcOfCircle(Part.Circle(V(-180.553892, -6, 0), V(0, 0, 1), 4), math.radians(180), math.radians(270)), False)
sketch8.addGeometry(Part.LineSegment(V(-168.553892, -8, 0), V(-180.553892, -8, 0)), False)
sketch8.addGeometry(Part.ArcOfCircle(Part.Circle(V(-180.553892, -6, 0), V(0, 0, 1), 2), math.radians(-180), math.radians(-90)), False)
sketch8.addGeometry(Part.LineSegment(V(-182.553892, -6, 0), V(-182.553892, 6, 0)), False)
sketch8.addGeometry(Part.ArcOfCircle(Part.Circle(V(-180.553892, 6, 0), V(0, 0, 1), 2), math.radians(90), math.radians(180)), False)
sketch8.addGeometry(Part.LineSegment(V(-180.553892, 8, 0), V(-168.553892, 8, 0)), False)
sketch8.addGeometry(Part.ArcOfCircle(Part.Circle(V(-168.553892, 6, 0), V(0, 0, 1), 2), math.radians(0), math.radians(90)), False)
sketch8.addGeometry(Part.LineSegment(V(-166.553892, 6, 0), V(-166.553892, -6, 0)), False)
sketch8.addGeometry(Part.ArcOfCircle(Part.Circle(V(-168.553892, -6, 0), V(0, 0, 1), 2), math.radians(-90), math.radians(0)), False)
sketch8.addConstraint(Sketcher.Constraint("Tangent", 0, 2, 1, 1))
sketch8.addConstraint(Sketcher.Constraint("Tangent", 1, 2, 2, 1))
sketch8.addConstraint(Sketcher.Constraint("Tangent", 2, 2, 3, 1))
sketch8.addConstraint(Sketcher.Constraint("Tangent", 3, 2, 4, 1))
sketch8.addConstraint(Sketcher.Constraint("Tangent", 4, 2, 5, 1))
sketch8.addConstraint(Sketcher.Constraint("Tangent", 5, 2, 6, 1))
sketch8.addConstraint(Sketcher.Constraint("Tangent", 6, 2, 7, 1))
sketch8.addConstraint(Sketcher.Constraint("Tangent", 7, 2, 0, 1))
sketch8.addConstraint(Sketcher.Constraint("Tangent", 8, 2, 9, 2))
sketch8.addConstraint(Sketcher.Constraint("Tangent", 9, 1, 10, 1))
sketch8.addConstraint(Sketcher.Constraint("Tangent", 10, 2, 11, 2))
sketch8.addConstraint(Sketcher.Constraint("Tangent", 11, 1, 12, 1))
sketch8.addConstraint(Sketcher.Constraint("Tangent", 12, 2, 13, 2))
sketch8.addConstraint(Sketcher.Constraint("Tangent", 13, 1, 14, 1))
sketch8.addConstraint(Sketcher.Constraint("Tangent", 14, 2, 15, 2))
sketch8.addConstraint(Sketcher.Constraint("Tangent", 15, 1, 8, 1))
sketch8.addConstraint(Sketcher.Constraint("Horizontal", 0))
sketch8.addConstraint(Sketcher.Constraint("Vertical", 2))
sketch8.addConstraint(Sketcher.Constraint("Horizontal", 4))
sketch8.addConstraint(Sketcher.Constraint("Vertical", 6))
sketch8.addConstraint(Sketcher.Constraint("Horizontal", 8))
sketch8.addConstraint(Sketcher.Constraint("Vertical", 10))
sketch8.addConstraint(Sketcher.Constraint("Horizontal", 12))
sketch8.addConstraint(Sketcher.Constraint("Vertical", 14))
sketch8.addConstraint(Sketcher.Constraint("Coincident", 9, 3, 7, 3))
sketch8.addConstraint(Sketcher.Constraint("Coincident", 11, 3, 5, 3))
sketch8.addConstraint(Sketcher.Constraint("Coincident", 13, 3, 3, 3))
sketch8.addConstraint(Sketcher.Constraint("Equal", 1, 3))
sketch8.addConstraint(Sketcher.Constraint("Equal", 3, 5))
sketch8.addConstraint(Sketcher.Constraint("Equal", 5, 7))
sketch8.addConstraint(Sketcher.Constraint("Equal", 13, 15))
sketch8.addConstraint(Sketcher.Constraint("Equal", 12, 2))
sketch8.addConstraint(Sketcher.Constraint("Radius", 1, Q("4 mm")))
sketch8.addConstraint(Sketcher.Constraint("Radius", 9, Q("2 mm")))
sketch8.addConstraint(Sketcher.Constraint("DistanceX", 0, 1, 0, 2, Q("12 mm")))
sketch8.addConstraint(Sketcher.Constraint("DistanceY", 1, 3, -1, 1, Q("6 mm")))
sketch8.addConstraint(Sketcher.Constraint("DistanceX", 1, 3, -1, 1, Q("168.553892 mm")))
pad7 = body7.newObject("PartDesign::Pad", "Pad006")
pad7.Profile = sketch8
pad7.Length = 10
body8 = doc.addObject("PartDesign::Body", "Body007")

# Sketch on XZ plane
sketch9 = body8.newObject("Sketcher::SketchObject", "Sketch008")
sketch9.AttachmentSupport = (doc.getObject("XZ_Plane007"), [""])
sketch9.MapMode = "FlatFace"
sketch9.AttachmentOffset = App.Placement(V(0, 0, 1990.523952), App.Rotation())
sketch9.addGeometry(Part.LineSegment(V(859.446108, -10, 0), V(871.446108, -10, 0)), False)
sketch9.addGeometry(Part.ArcOfCircle(Part.Circle(V(871.446108, -6, 0), V(0, 0, 1), 4), math.radians(-90), math.radians(0)), False)
sketch9.addGeometry(Part.LineSegment(V(875.446108, -6, 0), V(875.446108, 6, 0)), False)
sketch9.addGeometry(Part.ArcOfCircle(Part.Circle(V(871.446108, 6, 0), V(0, 0, 1), 4), math.radians(0), math.radians(90)), False)
sketch9.addGeometry(Part.LineSegment(V(871.446108, 10, 0), V(859.446108, 10, 0)), False)
sketch9.addGeometry(Part.ArcOfCircle(Part.Circle(V(859.446108, 6, 0), V(0, 0, 1), 4), math.radians(90), math.radians(180)), False)
sketch9.addGeometry(Part.LineSegment(V(855.446108, 6, 0), V(855.446108, -6, 0)), False)
sketch9.addGeometry(Part.ArcOfCircle(Part.Circle(V(859.446108, -6, 0), V(0, 0, 1), 4), math.radians(180), math.radians(270)), False)
sketch9.addGeometry(Part.LineSegment(V(871.446108, -8, 0), V(859.446108, -8, 0)), False)
sketch9.addGeometry(Part.ArcOfCircle(Part.Circle(V(859.446108, -6, 0), V(0, 0, 1), 2), math.radians(-180), math.radians(-90)), False)
sketch9.addGeometry(Part.LineSegment(V(857.446108, -6, 0), V(857.446108, 6, 0)), False)
sketch9.addGeometry(Part.ArcOfCircle(Part.Circle(V(859.446108, 6, 0), V(0, 0, 1), 2), math.radians(90), math.radians(180)), False)
sketch9.addGeometry(Part.LineSegment(V(859.446108, 8, 0), V(871.446108, 8, 0)), False)
sketch9.addGeometry(Part.ArcOfCircle(Part.Circle(V(871.446108, 6, 0), V(0, 0, 1), 2), math.radians(0), math.radians(90)), False)
sketch9.addGeometry(Part.LineSegment(V(873.446108, 6, 0), V(873.446108, -6, 0)), False)
sketch9.addGeometry(Part.ArcOfCircle(Part.Circle(V(871.446108, -6, 0), V(0, 0, 1), 2), math.radians(-90), math.radians(0)), False)
sketch9.addConstraint(Sketcher.Constraint("Tangent", 0, 2, 1, 1))
sketch9.addConstraint(Sketcher.Constraint("Tangent", 1, 2, 2, 1))
sketch9.addConstraint(Sketcher.Constraint("Tangent", 2, 2, 3, 1))
sketch9.addConstraint(Sketcher.Constraint("Tangent", 3, 2, 4, 1))
sketch9.addConstraint(Sketcher.Constraint("Tangent", 4, 2, 5, 1))
sketch9.addConstraint(Sketcher.Constraint("Tangent", 5, 2, 6, 1))
sketch9.addConstraint(Sketcher.Constraint("Tangent", 6, 2, 7, 1))
sketch9.addConstraint(Sketcher.Constraint("Tangent", 7, 2, 0, 1))
sketch9.addConstraint(Sketcher.Constraint("Tangent", 8, 2, 9, 2))
sketch9.addConstraint(Sketcher.Constraint("Tangent", 9, 1, 10, 1))
sketch9.addConstraint(Sketcher.Constraint("Tangent", 10, 2, 11, 2))
sketch9.addConstraint(Sketcher.Constraint("Tangent", 11, 1, 12, 1))
sketch9.addConstraint(Sketcher.Constraint("Tangent", 12, 2, 13, 2))
sketch9.addConstraint(Sketcher.Constraint("Tangent", 13, 1, 14, 1))
sketch9.addConstraint(Sketcher.Constraint("Tangent", 14, 2, 15, 2))
sketch9.addConstraint(Sketcher.Constraint("Tangent", 15, 1, 8, 1))
sketch9.addConstraint(Sketcher.Constraint("Horizontal", 0))
sketch9.addConstraint(Sketcher.Constraint("Vertical", 2))
sketch9.addConstraint(Sketcher.Constraint("Horizontal", 4))
sketch9.addConstraint(Sketcher.Constraint("Vertical", 6))
sketch9.addConstraint(Sketcher.Constraint("Horizontal", 8))
sketch9.addConstraint(Sketcher.Constraint("Vertical", 10))
sketch9.addConstraint(Sketcher.Constraint("Horizontal", 12))
sketch9.addConstraint(Sketcher.Constraint("Vertical", 14))
sketch9.addConstraint(Sketcher.Constraint("Coincident", 9, 3, 7, 3))
sketch9.addConstraint(Sketcher.Constraint("Coincident", 11, 3, 5, 3))
sketch9.addConstraint(Sketcher.Constraint("Coincident", 13, 3, 3, 3))
sketch9.addConstraint(Sketcher.Constraint("Equal", 1, 3))
sketch9.addConstraint(Sketcher.Constraint("Equal", 3, 5))
sketch9.addConstraint(Sketcher.Constraint("Equal", 5, 7))
sketch9.addConstraint(Sketcher.Constraint("Equal", 13, 15))
sketch9.addConstraint(Sketcher.Constraint("Equal", 12, 2))
sketch9.addConstraint(Sketcher.Constraint("Radius", 1, Q("4 mm")))
sketch9.addConstraint(Sketcher.Constraint("Radius", 9, Q("2 mm")))
sketch9.addConstraint(Sketcher.Constraint("DistanceX", 0, 1, 0, 2, Q("12 mm")))
sketch9.addConstraint(Sketcher.Constraint("DistanceY", 1, 3, -1, 1, Q("6 mm")))
sketch9.addConstraint(Sketcher.Constraint("DistanceX", -1, 1, 1, 3, Q("871.446108 mm")))
pad8 = body8.newObject("PartDesign::Pad", "Pad007")
pad8.Profile = sketch9
pad8.Length = 10

doc.recompute()
